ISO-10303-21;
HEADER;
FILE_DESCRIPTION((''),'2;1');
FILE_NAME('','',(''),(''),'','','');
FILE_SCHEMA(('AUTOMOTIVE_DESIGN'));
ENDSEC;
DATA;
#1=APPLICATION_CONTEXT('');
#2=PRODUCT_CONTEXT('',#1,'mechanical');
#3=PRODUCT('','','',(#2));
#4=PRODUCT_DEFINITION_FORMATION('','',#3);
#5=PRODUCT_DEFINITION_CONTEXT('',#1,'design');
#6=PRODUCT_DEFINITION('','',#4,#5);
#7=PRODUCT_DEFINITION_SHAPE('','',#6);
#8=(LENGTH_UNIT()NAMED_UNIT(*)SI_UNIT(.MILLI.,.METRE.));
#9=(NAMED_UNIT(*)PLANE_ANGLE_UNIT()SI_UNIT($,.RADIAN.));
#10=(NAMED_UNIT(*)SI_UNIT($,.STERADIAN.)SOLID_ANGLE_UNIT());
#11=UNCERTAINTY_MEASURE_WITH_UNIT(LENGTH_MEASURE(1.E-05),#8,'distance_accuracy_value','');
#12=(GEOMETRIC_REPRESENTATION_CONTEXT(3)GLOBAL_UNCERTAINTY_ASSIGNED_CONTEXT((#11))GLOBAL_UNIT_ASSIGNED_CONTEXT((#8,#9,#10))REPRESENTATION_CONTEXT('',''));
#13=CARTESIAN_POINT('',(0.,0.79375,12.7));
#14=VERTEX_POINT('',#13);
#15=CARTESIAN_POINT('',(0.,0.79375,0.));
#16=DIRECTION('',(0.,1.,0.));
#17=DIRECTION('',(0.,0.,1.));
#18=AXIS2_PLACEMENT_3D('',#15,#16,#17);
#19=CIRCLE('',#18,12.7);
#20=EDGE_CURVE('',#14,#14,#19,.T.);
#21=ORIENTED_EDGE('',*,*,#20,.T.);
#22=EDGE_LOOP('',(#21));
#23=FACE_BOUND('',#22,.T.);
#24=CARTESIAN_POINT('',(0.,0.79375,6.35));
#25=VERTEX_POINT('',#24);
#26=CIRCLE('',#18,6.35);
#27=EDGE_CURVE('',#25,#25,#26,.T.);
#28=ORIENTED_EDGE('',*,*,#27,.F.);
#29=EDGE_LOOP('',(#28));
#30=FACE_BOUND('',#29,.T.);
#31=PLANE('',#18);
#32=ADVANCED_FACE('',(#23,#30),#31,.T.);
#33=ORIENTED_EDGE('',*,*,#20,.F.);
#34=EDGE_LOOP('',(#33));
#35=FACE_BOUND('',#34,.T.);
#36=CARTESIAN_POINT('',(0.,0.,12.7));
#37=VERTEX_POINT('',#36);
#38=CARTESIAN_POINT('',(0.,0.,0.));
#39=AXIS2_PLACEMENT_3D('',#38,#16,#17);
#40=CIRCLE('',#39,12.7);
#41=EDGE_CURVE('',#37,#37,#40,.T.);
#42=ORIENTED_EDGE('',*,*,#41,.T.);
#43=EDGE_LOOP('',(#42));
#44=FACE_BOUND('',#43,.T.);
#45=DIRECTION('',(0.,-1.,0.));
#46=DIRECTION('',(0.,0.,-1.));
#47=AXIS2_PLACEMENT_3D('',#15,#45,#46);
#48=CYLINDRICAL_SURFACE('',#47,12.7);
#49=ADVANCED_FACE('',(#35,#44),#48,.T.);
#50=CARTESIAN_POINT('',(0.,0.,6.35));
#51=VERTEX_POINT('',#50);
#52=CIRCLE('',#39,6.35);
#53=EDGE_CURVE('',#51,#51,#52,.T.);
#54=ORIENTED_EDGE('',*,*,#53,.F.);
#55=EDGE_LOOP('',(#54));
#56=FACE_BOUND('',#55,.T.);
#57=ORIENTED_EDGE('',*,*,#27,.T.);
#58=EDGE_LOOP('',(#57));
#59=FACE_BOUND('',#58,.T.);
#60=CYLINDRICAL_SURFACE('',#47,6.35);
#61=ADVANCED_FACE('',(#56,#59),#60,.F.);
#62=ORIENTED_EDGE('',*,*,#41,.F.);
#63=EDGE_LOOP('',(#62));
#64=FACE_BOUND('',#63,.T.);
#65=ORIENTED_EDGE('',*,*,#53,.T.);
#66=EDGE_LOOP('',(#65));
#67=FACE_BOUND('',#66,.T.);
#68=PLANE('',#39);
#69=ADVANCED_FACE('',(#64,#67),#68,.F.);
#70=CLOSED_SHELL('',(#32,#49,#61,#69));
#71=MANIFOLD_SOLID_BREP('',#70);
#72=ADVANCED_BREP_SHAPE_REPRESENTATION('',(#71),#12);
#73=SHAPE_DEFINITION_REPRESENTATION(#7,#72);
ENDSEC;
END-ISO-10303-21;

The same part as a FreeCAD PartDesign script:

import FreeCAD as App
import Part
import Sketcher

V = App.Vector
Q = App.Units.Quantity

doc = App.newDocument("Part")
params = doc.addObject("Spreadsheet::Sheet", "Params")
for row, (alias, value) in enumerate([
    ("sketch1_diameter", "1 in"),
    ("sketch1_diameter2", "0.5 in"),
    ("pad1_length", "0.03125 in"),
], start=1):
    params.set(f"A{row}", alias)
    params.set(f"B{row}", "=" + value)
    params.setAlias(f"B{row}", alias)

body = doc.addObject("PartDesign::Body", "Body")

sketch1 = body.newObject("Sketcher::SketchObject", "Sketch")
sketch1.AttachmentSupport = (doc.getObject("XZ_Plane"), [""])
sketch1.MapMode = "FlatFace"
sketch1.addGeometry([
    Part.Circle(V(0, 0, 0), V(0, 0, 1), 13),
    Part.Circle(V(0, 0, 0), V(0, 0, 1), 6),
], False)
sketch1.addConstraint([
    Sketcher.Constraint("Coincident", 0, 3, -1, 1),
    Sketcher.Constraint("Coincident", 1, 3, -1, 1),
    Sketcher.Constraint("Diameter", 0, Q("1 in")),
    Sketcher.Constraint("Diameter", 1, Q("0.5 in")),
])
sketch1.setExpression("Constraints[2]", "Params.sketch1_diameter")
sketch1.setExpression("Constraints[3]", "Params.sketch1_diameter2")
pad1 = body.newObject("PartDesign::Pad", "Pad")
pad1.Profile = sketch1
pad1.setExpression("Length", "Params.pad1_length")
pad1.Reversed = True

doc.recompute()
